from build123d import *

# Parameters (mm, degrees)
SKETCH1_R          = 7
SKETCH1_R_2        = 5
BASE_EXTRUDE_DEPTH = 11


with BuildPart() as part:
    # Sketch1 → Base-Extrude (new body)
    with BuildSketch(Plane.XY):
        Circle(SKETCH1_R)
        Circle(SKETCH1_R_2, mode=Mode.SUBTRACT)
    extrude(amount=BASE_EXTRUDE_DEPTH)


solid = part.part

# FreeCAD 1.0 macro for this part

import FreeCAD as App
import Part
import Sketcher

doc = App.newDocument("Part")
params = doc.addObject("Spreadsheet::Sheet", "Params")
for row, (alias, value) in enumerate([
    ("sketch1_diameter", "14 mm"),
    ("sketch1_diameter2", "10 mm"),
    ("pad1_length", "11 mm"),
], start=1):
    params.set(f"A{row}", alias)
    params.set(f"B{row}", "=" + value)
    params.setAlias(f"B{row}", alias)

body = doc.addObject("PartDesign::Body", "Body")

# Sketch on XY plane
sketch1 = body.newObject("Sketcher::SketchObject", "Sketch")
sketch1.AttachmentSupport = (doc.getObject("XY_Plane"), [""])
sketch1.MapMode = "FlatFace"
sketch1.addGeometry([
    Part.Circle(App.Vector(0, 0, 0), App.Vector(0, 0, 1), 7),
    Part.Circle(App.Vector(0, 0, 0), App.Vector(0, 0, 1), 5),
], False)
sketch1.addConstraint([
    Sketcher.Constraint("Coincident", 0, 3, -1, 1),
    Sketcher.Constraint("Coincident", 1, 3, -1, 1),
    Sketcher.Constraint("Diameter", 0, 14.0),
    Sketcher.Constraint("Diameter", 1, 10.0),
])
sketch1.setExpression("Constraints[2]", "Params.sketch1_diameter")
sketch1.setExpression("Constraints[3]", "Params.sketch1_diameter2")
pad1 = body.newObject("PartDesign::Pad", "Pad")
pad1.Profile = sketch1
pad1.setExpression("Length", "Params.pad1_length")

doc.recompute()
